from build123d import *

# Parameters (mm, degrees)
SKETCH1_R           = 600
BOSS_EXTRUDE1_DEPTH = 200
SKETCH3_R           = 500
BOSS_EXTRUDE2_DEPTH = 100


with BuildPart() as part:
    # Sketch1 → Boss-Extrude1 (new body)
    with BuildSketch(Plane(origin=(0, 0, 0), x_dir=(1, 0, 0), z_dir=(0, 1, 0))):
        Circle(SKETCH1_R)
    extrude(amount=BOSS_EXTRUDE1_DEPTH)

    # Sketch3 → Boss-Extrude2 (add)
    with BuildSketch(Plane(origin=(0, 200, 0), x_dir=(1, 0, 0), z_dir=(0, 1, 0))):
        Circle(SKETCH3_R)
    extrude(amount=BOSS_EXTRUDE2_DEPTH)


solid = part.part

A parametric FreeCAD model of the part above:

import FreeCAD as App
import Part
import Sketcher

doc = App.newDocument("Part")
body = doc.addObject("PartDesign::Body", "Body")

sketch1 = doc.addObject("Sketcher::SketchObject", "Sketch")
body.addObject(sketch1)
sketch1.AttachmentSupport = (doc.XZ_Plane, [""])
sketch1.MapMode = "FlatFace"
sketch1.addGeometry(Part.Circle(App.Vector(0, 0, 0), App.Vector(0, 0, 1), 600), False)
sketch1.addConstraint([
    Sketcher.Constraint("Coincident", 0, 3, -1, 1),
    Sketcher.Constraint("Diameter", 0, 1200.0),
])
pad1 = doc.addObject("PartDesign::Pad", "Pad")
body.addObject(pad1)
pad1.Profile = sketch1
pad1.Length = 200
pad1.Reversed = True

sketch2 = doc.addObject("Sketcher::SketchObject", "Sketch001")
body.addObject(sketch2)
sketch2.AttachmentSupport = (doc.XZ_Plane, [""])
sketch2.MapMode = "FlatFace"
sketch2.AttachmentOffset = App.Placement(App.Vector(0, 0, -200), App.Rotation())
sketch2.addGeometry(Part.Circle(App.Vector(0, 0, 0), App.Vector(0, 0, 1), 500), False)
sketch2.addConstraint([
    Sketcher.Constraint("Coincident", 0, 3, -1, 1),
    Sketcher.Constraint("Diameter", 0, 1000.0),
])
pad2 = doc.addObject("PartDesign::Pad", "Pad001")
body.addObject(pad2)
pad2.Profile = sketch2
pad2.Length = 100
pad2.Reversed = True

doc.recompute()
